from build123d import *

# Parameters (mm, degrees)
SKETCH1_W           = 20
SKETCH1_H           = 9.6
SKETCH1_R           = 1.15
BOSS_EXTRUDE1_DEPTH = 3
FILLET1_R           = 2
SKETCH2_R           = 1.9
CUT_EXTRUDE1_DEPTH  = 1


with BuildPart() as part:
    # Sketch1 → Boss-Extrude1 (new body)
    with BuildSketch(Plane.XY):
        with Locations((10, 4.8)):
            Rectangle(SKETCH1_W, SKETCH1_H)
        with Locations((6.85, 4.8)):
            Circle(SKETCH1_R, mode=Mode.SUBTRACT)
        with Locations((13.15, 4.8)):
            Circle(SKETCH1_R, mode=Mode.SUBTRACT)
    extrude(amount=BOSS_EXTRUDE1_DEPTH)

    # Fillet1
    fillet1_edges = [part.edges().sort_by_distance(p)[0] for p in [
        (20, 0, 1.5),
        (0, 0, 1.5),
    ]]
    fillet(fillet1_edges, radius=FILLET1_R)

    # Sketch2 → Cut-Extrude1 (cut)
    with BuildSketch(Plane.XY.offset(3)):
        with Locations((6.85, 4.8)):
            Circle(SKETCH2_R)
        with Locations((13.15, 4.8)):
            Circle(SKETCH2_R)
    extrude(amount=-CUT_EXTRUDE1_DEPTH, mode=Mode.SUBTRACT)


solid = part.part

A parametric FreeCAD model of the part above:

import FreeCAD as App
import Part
import Sketcher

V = App.Vector


def edges_at(feature, points):
    """Names of the edges that pass closest to the given points."""
    edges = feature.Shape.Edges
    near = lambda p: min(range(len(edges)), key=lambda i: edges[i].distToShape(Part.Vertex(*p))[0])
    return sorted({f"Edge{near(p) + 1}" for p in points})


def add_polygon(sketch, points):
    """Adds a closed chain of lines whose ends are joined by coincident constraints."""
    first, n = sketch.GeometryCount, len(points)
    for a, b in zip(points, points[1:] + points[:1]):
        sketch.addGeometry(Part.LineSegment(App.Vector(*a, 0), App.Vector(*b, 0)), False)
    for i in range(n):
        sketch.addConstraint(Sketcher.Constraint("Coincident", first + i, 2, first + (i + 1) % n, 1))

doc = App.newDocument("Part")
body = doc.addObject("PartDesign::Body", "Body")

# Sketch on XY plane
sketch1 = doc.addObject("Sketcher::SketchObject", "Sketch")
body.addObject(sketch1)
sketch1.AttachmentSupport = (doc.XY_Plane, [""])
sketch1.MapMode = "FlatFace"
add_polygon(sketch1, [(0, 9.6), (0, 0), (20, 0), (20, 9.6)])  # lines 0-3
sketch1.addGeometry(Part.Circle(V(6.8, 4.8, 0), V(0, 0, 1), 1.1), False)  # 4
sketch1.addGeometry(Part.Circle(V(13.2, 4.8, 0), V(0, 0, 1), 1.1), False)  # 5
sketch1.addConstraint(Sketcher.Constraint("Vertical", 0))
sketch1.addConstraint(Sketcher.Constraint("Horizontal", 1))
sketch1.addConstraint(Sketcher.Constraint("Vertical", 2))
sketch1.addConstraint(Sketcher.Constraint("Horizontal", 3))
sketch1.addConstraint(Sketcher.Constraint("Coincident", 0, 2, -1, 1))
sketch1.addConstraint(Sketcher.Constraint("Equal", 4, 5))
sketch1.addConstraint(Sketcher.Constraint("Horizontal", 4, 3, 5, 3))
sketch1.addConstraint(Sketcher.Constraint("Diameter", 4, 2.3))
sketch1.addConstraint(Sketcher.Constraint("DistanceX", 1, 1, 1, 2, 20.0))
sketch1.addConstraint(Sketcher.Constraint("DistanceY", 0, 2, 0, 1, 9.6))
sketch1.addConstraint(Sketcher.Constraint("DistanceY", -1, 1, 4, 3, 4.8))
sketch1.addConstraint(Sketcher.Constraint("DistanceX", 4, 3, 5, 3, 6.3))
sketch1.addConstraint(Sketcher.Constraint("DistanceX", -1, 1, 4, 3, 6.85))
pad1 = doc.addObject("PartDesign::Pad", "Pad")
body.addObject(pad1)
pad1.Profile = sketch1
pad1.Length = 3
doc.recompute()

fillet = doc.addObject("PartDesign::Fillet", "Fillet")
body.addObject(fillet)
fillet.Base = (pad1, edges_at(pad1, [(20, 0, 1.5), (0, 0, 1.5)]))
fillet.Radius = 2

# Sketch on XY plane
sketch2 = doc.addObject("Sketcher::SketchObject", "Sketch001")
body.addObject(sketch2)
sketch2.AttachmentSupport = (doc.XY_Plane, [""])
sketch2.MapMode = "FlatFace"
sketch2.AttachmentOffset = App.Placement(V(0, 0, 3), App.Rotation())
sketch2.addGeometry(Part.Circle(V(6.8, 4.8, 0), V(0, 0, 1), 1.9), False)
sketch2.addGeometry(Part.Circle(V(13.2, 4.8, 0), V(0, 0, 1), 1.9), False)
sketch2.addConstraint(Sketcher.Constraint("Equal", 0, 1))
sketch2.addConstraint(Sketcher.Constraint("Horizontal", 0, 3, 1, 3))
sketch2.addConstraint(Sketcher.Constraint("Diameter", 0, 3.8))
sketch2.addConstraint(Sketcher.Constraint("DistanceY", -1, 1, 0, 3, 4.8))
sketch2.addConstraint(Sketcher.Constraint("DistanceX", 0, 3, 1, 3, 6.3))
sketch2.addConstraint(Sketcher.Constraint("DistanceX", -1, 1, 0, 3, 6.85))
pocket1 = doc.addObject("PartDesign::Pocket", "Pocket")
body.addObject(pocket1)
pocket1.Profile = sketch2
pocket1.Length = 1

doc.recompute()
